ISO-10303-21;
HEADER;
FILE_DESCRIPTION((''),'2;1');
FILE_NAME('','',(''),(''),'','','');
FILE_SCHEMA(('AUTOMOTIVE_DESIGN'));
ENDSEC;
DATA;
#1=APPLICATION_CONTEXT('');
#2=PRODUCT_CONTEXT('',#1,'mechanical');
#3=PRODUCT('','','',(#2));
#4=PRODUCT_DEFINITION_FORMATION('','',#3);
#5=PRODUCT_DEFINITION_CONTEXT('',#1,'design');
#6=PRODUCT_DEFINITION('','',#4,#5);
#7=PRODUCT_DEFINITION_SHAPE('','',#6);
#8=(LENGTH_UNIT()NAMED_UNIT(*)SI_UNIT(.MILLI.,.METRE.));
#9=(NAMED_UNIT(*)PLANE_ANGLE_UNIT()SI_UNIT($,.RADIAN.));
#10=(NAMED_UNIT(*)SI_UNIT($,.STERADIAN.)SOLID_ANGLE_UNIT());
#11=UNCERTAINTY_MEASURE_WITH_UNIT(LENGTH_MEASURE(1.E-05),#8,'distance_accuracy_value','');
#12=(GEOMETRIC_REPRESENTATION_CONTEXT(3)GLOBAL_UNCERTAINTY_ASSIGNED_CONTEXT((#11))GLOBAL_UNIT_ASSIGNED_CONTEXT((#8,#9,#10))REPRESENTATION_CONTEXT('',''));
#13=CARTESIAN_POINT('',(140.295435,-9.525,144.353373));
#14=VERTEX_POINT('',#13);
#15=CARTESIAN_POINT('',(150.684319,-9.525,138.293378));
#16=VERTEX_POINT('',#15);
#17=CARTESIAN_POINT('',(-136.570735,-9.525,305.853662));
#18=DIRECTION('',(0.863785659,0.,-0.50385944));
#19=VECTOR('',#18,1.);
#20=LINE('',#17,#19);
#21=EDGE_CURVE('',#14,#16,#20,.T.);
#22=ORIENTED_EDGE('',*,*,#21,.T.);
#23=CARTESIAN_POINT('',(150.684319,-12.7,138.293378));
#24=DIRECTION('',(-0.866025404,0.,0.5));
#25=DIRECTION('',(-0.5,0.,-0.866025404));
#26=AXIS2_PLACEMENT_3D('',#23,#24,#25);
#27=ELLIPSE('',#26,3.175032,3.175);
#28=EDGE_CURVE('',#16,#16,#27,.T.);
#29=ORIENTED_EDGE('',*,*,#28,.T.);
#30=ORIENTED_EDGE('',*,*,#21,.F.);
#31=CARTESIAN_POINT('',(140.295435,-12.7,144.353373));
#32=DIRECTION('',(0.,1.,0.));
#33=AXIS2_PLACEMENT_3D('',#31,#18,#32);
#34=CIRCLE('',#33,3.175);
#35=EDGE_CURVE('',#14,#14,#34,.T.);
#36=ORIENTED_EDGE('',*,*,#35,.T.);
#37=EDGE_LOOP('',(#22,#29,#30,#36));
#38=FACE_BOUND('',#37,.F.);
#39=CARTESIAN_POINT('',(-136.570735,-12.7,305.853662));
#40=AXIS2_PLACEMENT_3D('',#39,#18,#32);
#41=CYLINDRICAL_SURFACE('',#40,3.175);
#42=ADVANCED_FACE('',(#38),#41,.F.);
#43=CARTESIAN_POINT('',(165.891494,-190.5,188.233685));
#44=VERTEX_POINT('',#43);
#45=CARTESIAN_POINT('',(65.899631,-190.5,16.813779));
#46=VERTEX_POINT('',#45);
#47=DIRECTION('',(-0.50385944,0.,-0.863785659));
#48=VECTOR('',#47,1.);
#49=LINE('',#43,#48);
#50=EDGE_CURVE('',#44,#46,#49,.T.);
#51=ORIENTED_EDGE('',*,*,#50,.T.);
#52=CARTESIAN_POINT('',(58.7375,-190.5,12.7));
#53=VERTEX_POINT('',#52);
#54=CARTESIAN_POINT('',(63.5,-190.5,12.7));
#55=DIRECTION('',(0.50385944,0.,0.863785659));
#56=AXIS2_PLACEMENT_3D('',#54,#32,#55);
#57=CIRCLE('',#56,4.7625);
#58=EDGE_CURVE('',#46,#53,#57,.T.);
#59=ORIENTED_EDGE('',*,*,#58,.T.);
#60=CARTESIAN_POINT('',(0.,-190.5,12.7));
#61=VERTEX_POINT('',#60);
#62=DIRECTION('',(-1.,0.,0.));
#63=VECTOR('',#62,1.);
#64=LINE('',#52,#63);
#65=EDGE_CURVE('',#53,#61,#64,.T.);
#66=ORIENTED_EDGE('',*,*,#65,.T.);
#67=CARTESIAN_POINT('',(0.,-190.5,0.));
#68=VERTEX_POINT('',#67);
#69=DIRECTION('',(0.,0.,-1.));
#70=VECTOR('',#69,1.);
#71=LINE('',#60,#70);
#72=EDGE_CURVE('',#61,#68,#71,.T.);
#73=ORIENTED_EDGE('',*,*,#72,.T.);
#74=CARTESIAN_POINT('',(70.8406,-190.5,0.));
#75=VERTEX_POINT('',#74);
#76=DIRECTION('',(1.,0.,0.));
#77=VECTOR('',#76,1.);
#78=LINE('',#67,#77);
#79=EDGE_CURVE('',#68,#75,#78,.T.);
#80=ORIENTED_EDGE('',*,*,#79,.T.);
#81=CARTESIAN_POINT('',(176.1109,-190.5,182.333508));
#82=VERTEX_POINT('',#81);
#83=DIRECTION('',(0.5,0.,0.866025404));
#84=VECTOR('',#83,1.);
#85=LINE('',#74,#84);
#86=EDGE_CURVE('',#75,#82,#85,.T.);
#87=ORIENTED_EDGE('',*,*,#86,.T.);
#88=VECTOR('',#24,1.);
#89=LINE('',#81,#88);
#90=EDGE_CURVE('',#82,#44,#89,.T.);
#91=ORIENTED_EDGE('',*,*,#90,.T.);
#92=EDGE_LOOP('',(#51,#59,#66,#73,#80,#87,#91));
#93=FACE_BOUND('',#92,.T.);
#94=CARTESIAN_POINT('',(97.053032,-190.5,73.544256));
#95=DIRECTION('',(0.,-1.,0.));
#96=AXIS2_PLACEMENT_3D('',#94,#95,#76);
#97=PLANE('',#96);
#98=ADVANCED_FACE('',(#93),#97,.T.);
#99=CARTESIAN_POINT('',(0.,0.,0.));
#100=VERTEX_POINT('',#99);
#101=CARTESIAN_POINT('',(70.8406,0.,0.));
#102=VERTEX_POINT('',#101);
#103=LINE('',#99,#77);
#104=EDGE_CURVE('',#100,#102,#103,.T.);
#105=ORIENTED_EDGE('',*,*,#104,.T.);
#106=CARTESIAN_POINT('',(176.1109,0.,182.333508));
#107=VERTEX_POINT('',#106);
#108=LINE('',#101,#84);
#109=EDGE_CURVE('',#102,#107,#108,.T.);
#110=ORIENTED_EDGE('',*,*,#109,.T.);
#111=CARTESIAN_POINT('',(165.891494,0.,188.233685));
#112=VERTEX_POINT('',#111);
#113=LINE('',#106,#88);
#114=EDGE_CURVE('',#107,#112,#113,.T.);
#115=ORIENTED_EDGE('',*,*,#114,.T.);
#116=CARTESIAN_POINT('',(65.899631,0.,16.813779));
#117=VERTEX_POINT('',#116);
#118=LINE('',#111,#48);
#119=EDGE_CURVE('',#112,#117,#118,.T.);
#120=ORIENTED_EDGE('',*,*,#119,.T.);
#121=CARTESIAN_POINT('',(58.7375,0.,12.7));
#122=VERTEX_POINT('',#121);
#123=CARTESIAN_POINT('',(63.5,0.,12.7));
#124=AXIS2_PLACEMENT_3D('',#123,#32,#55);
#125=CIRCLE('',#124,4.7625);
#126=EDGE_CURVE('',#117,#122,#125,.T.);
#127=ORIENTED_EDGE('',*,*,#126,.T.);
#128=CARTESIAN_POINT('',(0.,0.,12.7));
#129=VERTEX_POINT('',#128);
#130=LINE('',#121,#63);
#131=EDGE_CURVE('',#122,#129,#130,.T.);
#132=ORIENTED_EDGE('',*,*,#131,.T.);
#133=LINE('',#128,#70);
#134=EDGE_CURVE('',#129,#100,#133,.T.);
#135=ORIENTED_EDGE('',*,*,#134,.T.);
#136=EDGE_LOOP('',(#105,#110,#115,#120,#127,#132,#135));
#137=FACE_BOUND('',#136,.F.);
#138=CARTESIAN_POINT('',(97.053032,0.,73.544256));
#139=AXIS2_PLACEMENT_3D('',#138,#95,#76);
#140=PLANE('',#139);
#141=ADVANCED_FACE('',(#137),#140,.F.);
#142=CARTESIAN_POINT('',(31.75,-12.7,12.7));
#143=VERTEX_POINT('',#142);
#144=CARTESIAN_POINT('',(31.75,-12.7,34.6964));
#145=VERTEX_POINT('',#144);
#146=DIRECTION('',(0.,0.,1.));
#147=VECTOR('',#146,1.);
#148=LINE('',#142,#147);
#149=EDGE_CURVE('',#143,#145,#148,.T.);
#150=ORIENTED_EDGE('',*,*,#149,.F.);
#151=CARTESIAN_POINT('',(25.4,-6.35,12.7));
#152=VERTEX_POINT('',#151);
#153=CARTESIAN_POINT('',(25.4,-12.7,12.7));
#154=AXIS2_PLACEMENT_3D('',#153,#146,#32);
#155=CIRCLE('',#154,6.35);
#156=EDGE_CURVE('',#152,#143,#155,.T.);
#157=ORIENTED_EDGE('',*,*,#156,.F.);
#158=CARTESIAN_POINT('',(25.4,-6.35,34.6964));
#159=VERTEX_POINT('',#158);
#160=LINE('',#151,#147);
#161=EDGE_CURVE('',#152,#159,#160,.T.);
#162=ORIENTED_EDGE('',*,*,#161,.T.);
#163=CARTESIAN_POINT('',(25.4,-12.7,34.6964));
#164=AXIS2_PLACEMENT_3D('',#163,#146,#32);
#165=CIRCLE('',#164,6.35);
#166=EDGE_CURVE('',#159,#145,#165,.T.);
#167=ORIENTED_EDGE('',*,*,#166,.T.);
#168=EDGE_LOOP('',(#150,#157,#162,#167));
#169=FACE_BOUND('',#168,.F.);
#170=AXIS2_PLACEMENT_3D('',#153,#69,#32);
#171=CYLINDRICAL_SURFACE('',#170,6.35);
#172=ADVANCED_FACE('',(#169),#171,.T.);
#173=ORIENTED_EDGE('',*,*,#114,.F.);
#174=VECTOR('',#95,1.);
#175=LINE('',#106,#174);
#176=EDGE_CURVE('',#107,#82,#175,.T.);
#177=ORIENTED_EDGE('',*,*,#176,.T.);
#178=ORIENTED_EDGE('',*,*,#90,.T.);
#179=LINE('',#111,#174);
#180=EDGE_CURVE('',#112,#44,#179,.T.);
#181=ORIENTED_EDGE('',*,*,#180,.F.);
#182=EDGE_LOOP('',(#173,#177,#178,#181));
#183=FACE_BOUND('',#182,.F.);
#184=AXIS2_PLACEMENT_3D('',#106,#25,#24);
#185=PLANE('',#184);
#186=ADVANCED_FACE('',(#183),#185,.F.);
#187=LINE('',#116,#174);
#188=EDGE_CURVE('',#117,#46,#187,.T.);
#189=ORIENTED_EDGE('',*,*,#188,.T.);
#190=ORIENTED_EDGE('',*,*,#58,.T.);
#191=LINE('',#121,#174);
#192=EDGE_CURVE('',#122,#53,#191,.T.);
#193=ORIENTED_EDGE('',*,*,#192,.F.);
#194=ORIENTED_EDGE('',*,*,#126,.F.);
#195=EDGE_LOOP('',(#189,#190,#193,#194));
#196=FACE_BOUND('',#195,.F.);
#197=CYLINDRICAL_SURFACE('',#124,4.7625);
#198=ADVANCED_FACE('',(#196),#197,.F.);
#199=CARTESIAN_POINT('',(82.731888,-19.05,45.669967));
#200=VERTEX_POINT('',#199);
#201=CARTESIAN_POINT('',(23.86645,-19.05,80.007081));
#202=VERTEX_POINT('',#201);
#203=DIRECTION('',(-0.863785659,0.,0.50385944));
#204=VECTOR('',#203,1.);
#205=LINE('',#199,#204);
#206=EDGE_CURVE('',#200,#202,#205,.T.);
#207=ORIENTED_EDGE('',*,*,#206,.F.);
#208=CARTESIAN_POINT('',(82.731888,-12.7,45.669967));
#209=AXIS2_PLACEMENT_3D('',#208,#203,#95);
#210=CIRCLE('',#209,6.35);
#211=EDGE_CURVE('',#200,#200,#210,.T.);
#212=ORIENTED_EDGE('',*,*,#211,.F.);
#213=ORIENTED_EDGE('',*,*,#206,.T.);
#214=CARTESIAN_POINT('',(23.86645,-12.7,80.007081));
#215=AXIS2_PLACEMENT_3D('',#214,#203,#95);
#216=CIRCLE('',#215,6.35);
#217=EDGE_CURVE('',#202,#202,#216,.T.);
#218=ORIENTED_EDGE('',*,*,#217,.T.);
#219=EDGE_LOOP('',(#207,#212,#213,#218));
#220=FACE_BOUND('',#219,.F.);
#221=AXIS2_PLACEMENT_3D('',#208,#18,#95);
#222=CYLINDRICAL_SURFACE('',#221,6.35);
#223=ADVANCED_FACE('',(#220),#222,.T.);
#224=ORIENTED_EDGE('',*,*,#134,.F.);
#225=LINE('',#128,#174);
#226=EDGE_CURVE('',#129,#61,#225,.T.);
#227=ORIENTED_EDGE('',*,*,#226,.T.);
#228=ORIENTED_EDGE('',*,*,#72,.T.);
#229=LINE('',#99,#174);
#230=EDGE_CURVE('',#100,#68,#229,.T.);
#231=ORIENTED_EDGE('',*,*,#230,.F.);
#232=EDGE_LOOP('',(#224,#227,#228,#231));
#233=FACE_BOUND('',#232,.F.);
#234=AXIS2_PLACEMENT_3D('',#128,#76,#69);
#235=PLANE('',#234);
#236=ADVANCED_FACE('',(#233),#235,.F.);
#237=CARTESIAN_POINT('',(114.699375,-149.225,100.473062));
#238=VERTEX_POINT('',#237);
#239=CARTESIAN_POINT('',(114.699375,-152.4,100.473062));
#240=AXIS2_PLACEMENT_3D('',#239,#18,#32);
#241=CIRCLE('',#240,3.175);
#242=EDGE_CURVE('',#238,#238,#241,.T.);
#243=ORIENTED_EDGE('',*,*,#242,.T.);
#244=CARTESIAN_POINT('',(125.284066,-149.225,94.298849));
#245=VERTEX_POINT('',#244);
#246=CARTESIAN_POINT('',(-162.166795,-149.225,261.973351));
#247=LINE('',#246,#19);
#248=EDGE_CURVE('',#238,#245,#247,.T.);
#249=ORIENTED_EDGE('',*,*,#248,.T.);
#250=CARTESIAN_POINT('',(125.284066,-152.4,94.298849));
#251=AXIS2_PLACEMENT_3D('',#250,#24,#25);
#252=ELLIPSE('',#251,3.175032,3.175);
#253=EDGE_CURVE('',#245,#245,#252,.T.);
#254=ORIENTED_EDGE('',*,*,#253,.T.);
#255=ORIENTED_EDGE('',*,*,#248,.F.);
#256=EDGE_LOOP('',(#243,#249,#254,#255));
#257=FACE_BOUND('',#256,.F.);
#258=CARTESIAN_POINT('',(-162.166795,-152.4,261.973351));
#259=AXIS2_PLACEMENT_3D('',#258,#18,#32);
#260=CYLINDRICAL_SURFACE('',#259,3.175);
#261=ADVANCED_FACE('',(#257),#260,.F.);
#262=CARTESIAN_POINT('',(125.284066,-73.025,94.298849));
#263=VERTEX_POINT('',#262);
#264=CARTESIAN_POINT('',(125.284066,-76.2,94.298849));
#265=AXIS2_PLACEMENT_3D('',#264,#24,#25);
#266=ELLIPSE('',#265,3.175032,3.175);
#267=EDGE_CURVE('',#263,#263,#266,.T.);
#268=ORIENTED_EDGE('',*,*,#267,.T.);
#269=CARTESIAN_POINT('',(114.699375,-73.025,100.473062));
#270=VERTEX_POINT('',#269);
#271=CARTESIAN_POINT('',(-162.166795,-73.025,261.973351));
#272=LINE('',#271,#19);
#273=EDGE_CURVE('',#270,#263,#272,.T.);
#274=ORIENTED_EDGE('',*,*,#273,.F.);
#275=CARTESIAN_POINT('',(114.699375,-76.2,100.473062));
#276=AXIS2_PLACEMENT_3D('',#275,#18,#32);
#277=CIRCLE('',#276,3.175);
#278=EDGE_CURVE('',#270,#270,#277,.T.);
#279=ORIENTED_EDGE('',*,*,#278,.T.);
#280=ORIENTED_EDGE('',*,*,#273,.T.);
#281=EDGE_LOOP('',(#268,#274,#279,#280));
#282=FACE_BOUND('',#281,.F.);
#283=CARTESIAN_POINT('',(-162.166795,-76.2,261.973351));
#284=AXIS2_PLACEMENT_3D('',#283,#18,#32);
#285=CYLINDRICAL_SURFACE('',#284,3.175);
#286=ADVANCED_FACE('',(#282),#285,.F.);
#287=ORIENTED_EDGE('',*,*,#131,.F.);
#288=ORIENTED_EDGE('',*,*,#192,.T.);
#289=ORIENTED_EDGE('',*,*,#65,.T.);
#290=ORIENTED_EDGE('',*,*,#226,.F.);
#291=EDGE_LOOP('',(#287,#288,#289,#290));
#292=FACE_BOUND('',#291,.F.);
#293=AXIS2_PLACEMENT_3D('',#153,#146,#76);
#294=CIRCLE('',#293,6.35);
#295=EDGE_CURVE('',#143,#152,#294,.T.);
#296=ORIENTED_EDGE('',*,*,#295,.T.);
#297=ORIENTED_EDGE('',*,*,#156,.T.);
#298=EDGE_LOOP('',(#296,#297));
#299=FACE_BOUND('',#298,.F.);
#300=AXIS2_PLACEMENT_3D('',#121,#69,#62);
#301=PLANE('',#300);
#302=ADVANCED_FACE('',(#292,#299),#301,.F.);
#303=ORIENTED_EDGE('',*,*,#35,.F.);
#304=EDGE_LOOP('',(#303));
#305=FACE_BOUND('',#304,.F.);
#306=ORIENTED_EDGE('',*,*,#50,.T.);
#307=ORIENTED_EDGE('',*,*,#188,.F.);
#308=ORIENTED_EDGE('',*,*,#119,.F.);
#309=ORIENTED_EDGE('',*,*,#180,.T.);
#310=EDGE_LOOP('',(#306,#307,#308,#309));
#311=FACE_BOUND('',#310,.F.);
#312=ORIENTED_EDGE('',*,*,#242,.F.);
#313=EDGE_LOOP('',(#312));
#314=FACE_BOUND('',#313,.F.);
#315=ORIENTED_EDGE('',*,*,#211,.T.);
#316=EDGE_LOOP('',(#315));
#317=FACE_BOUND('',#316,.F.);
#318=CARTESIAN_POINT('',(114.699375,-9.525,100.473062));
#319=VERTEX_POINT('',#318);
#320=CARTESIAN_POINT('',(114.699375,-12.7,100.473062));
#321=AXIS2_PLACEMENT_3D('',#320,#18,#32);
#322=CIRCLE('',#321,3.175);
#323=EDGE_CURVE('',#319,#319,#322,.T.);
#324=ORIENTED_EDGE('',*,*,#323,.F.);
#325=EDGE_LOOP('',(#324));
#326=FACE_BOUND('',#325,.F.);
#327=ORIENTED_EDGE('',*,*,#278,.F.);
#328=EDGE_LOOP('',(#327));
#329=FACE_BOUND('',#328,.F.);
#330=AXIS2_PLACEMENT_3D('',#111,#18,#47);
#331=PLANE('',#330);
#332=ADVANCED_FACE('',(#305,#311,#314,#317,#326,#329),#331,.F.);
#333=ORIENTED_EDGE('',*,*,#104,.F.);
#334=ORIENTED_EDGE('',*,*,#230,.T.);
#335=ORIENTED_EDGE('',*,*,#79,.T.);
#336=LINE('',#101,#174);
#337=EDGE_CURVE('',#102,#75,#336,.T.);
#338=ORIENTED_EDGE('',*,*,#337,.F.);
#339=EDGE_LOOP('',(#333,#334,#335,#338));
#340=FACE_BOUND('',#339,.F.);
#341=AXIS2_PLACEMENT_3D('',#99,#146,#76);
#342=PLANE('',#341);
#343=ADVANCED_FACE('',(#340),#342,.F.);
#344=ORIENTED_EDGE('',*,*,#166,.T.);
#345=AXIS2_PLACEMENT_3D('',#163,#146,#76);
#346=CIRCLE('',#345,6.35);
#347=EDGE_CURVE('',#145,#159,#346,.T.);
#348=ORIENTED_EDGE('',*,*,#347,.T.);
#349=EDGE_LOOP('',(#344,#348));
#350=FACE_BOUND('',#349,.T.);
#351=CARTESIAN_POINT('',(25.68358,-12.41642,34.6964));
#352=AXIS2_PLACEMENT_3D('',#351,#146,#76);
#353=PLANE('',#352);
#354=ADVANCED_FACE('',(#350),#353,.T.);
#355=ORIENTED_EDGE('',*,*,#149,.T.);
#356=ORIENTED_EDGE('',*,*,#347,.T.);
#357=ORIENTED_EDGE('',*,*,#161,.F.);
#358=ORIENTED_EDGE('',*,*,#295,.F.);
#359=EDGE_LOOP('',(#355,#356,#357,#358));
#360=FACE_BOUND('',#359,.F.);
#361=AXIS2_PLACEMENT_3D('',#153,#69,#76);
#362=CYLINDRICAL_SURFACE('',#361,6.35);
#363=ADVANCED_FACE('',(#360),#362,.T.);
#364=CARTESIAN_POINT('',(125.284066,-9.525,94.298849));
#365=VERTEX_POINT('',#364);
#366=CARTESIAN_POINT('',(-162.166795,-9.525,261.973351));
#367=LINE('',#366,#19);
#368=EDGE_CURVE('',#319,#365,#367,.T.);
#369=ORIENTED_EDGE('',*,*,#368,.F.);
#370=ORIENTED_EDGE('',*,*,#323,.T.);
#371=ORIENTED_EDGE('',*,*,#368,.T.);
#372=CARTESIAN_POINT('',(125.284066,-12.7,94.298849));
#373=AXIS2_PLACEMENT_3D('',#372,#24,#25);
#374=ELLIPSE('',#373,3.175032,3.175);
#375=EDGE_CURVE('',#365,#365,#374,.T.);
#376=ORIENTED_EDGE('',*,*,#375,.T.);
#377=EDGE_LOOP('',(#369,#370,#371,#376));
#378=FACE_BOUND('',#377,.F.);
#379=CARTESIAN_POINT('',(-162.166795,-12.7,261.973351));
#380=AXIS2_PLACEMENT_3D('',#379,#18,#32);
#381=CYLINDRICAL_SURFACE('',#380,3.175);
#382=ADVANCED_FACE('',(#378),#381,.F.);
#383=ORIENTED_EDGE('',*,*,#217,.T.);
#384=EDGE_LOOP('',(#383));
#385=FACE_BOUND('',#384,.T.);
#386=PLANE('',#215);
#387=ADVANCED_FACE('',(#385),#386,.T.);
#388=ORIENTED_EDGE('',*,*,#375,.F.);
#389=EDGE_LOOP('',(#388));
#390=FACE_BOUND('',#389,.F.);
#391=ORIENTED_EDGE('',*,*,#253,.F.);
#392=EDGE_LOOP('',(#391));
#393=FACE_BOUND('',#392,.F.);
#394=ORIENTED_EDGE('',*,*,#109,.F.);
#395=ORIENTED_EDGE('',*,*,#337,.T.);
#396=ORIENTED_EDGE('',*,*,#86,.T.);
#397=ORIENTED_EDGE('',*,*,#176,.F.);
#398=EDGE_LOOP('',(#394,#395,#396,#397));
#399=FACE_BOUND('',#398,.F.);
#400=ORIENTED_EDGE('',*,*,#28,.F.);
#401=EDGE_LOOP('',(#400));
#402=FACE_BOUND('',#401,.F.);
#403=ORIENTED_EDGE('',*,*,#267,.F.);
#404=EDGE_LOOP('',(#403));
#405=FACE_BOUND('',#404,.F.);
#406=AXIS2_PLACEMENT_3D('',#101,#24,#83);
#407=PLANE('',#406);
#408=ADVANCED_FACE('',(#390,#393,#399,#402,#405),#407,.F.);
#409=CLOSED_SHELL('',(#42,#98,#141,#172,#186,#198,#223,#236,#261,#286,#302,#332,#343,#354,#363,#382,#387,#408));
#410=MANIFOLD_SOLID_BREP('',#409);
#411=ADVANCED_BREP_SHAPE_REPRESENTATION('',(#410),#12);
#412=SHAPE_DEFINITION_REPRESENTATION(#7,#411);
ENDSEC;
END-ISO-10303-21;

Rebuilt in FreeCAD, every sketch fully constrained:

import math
import FreeCAD as App
import Part
import Sketcher
from FreeCAD import Vector
Q = App.Units.Quantity

doc = App.newDocument("Part")
params = doc.addObject("Spreadsheet::Sheet", "Params")
for row, (alias, value) in enumerate([
    ("sketch1_height", "0.5 in"),
    ("sketch1_radius", "0.1875 in"),
    ("sketch1_width", "2.789 in"),
    ("sketch1_length", "8.289 in"),
    ("pad1_length", "7.5 in"),
    ("sketch2_radius", "0.25 in"),
    ("pad2_length", "0.866 in"),
    ("sketch3_diameter", "0.5 in"),
    ("pad3_length", "2.683 in"),
    ("sketch4_diameter", "0.25 in"),
    ("hole_diameter", "0.25 in"),
], start=1):
    params.set(f"A{row}", alias)
    params.set(f"B{row}", "=" + value)
    params.setAlias(f"B{row}", alias)

body = doc.addObject("PartDesign::Body", "Body")

# Sketch on XZ plane
sketch1 = body.newObject("Sketcher::SketchObject", "Sketch")
sketch1.AttachmentSupport = (doc.getObject("XZ_Plane"), [""])
sketch1.MapMode = "FlatFace"
sketch1.addGeometry(Part.LineSegment(Vector(0, 12.7, 0), Vector(0, 0, 0)), False)
sketch1.addGeometry(Part.LineSegment(Vector(0, 0, 0), Vector(70.8406, 0, 0)), False)
sketch1.addGeometry(Part.LineSegment(Vector(70.8406, 0, 0), Vector(176.1109, 182.333508, 0)), False)
sketch1.addGeometry(Part.LineSegment(Vector(176.1109, 182.333508, 0), Vector(165.891494, 188.233685, 0)), False)
sketch1.addGeometry(Part.LineSegment(Vector(165.891494, 188.233685, 0), Vector(65.899631, 16.813779, 0)), False)
sketch1.addGeometry(Part.ArcOfCircle(Part.Circle(Vector(63.5, 12.7, 0), Vector(0, 0, 1), 4.7625), math.radians(180), math.radians(419.744331)), False)
sketch1.addGeometry(Part.LineSegment(Vector(58.7375, 12.7, 0), Vector(0, 12.7, 0)), False)
sketch1.addConstraint(Sketcher.Constraint("Coincident", 0, 2, 1, 1))
sketch1.addConstraint(Sketcher.Constraint("Coincident", 1, 2, 2, 1))
sketch1.addConstraint(Sketcher.Constraint("Coincident", 2, 2, 3, 1))
sketch1.addConstraint(Sketcher.Constraint("Coincident", 3, 2, 4, 1))
sketch1.addConstraint(Sketcher.Constraint("Coincident", 4, 2, 5, 2))
sketch1.addConstraint(Sketcher.Constraint("Coincident", 5, 1, 6, 1))
sketch1.addConstraint(Sketcher.Constraint("Coincident", 6, 2, 0, 1))
sketch1.addConstraint(Sketcher.Constraint("Vertical", 0))
sketch1.addConstraint(Sketcher.Constraint("Horizontal", 1))
sketch1.addConstraint(Sketcher.Constraint("Horizontal", 6))
sketch1.addConstraint(Sketcher.Constraint("Coincident", 0, 2, -1, 1))
sketch1.addConstraint(Sketcher.Constraint("DistanceY", 0, 2, 0, 1, Q("0.5 in")))
sketch1.addConstraint(Sketcher.Constraint("Radius", 5, Q("0.1875 in")))
sketch1.addConstraint(Sketcher.Constraint("DistanceX", -1, 1, 5, 3, Q("2.5 in")))
sketch1.addConstraint(Sketcher.Constraint("DistanceY", -1, 1, 5, 3, Q("0.5 in")))
sketch1.addConstraint(Sketcher.Constraint("DistanceX", 1, 1, 1, 2, Q("2.789 in")))
sketch1.addConstraint(Sketcher.Constraint("Distance", 2, Q("8.289 in")))
sketch1.addConstraint(Sketcher.Constraint("DistanceX", -1, 1, 2, 2, Q("6.9335 in")))
sketch1.addConstraint(Sketcher.Constraint("Distance", 4, Q("198.451901 mm")))
sketch1.addConstraint(Sketcher.Constraint("DistanceX", -1, 1, 4, 2, Q("65.899631 mm")))
sketch1.addConstraint(Sketcher.Constraint("Distance", 3, Q("11.800353 mm")))
sketch1.setExpression("Constraints[11]", "Params.sketch1_height")
sketch1.setExpression("Constraints[12]", "Params.sketch1_radius")
sketch1.setExpression("Constraints[15]", "Params.sketch1_width")
sketch1.setExpression("Constraints[16]", "Params.sketch1_length")
pad1 = body.newObject("PartDesign::Pad", "Pad")
pad1.Profile = sketch1
pad1.setExpression("Length", "Params.pad1_length")

# Sketch on XY plane
sketch2 = body.newObject("Sketcher::SketchObject", "Sketch001")
sketch2.AttachmentSupport = (doc.getObject("XY_Plane"), [""])
sketch2.MapMode = "FlatFace"
sketch2.AttachmentOffset = App.Placement(Vector(0, 0, 0.5 * 25.4), App.Rotation())
sketch2.addGeometry(Part.ArcOfCircle(Part.Circle(Vector(25.4, -12.7, 0), Vector(0, 0, 1), 6.35), math.radians(90), math.radians(360)), False)
sketch2.addGeometry(Part.ArcOfCircle(Part.Circle(Vector(25.4, -12.7, 0), Vector(0, 0, 1), 6.35), math.radians(0), math.radians(90)), False)
sketch2.addConstraint(Sketcher.Constraint("Tangent", 0, 1, 1, 2))
sketch2.addConstraint(Sketcher.Constraint("Coincident", 1, 1, 0, 2))
sketch2.addConstraint(Sketcher.Constraint("Horizontal", 0, 3, 1, 1))
sketch2.addConstraint(Sketcher.Constraint("Vertical", 1, 3, 0, 1))
sketch2.addConstraint(Sketcher.Constraint("Radius", 0, Q("0.25 in")))
sketch2.addConstraint(Sketcher.Constraint("DistanceX", -1, 1, 0, 3, Q("1 in")))
sketch2.addConstraint(Sketcher.Constraint("DistanceY", 0, 3, -1, 1, Q("0.5 in")))
sketch2.setExpression("Constraints[4]", "Params.sketch2_radius")
pad2 = body.newObject("PartDesign::Pad", "Pad001")
pad2.Profile = sketch2
pad2.setExpression("Length", "Params.pad2_length")

# Sketch on an angled plane
sketch3 = body.newObject("Sketcher::SketchObject", "Sketch002")
sketch3.Placement = App.Placement(Vector(41.851602, 0, -24.412682), App.Rotation(Vector(0, -1, 0), Vector(0.50385944, 0, 0.863785659), Vector(-0.863785659, 0, 0.50385944), "ZXY"))
sketch3.addGeometry(Part.Circle(Vector(12.7, 81.134305, 0), Vector(0, 0, 1), 6.35), False)
sketch3.addConstraint(Sketcher.Constraint("Diameter", 0, Q("0.5 in")))
sketch3.addConstraint(Sketcher.Constraint("DistanceX", -1, 1, 0, 3, Q("0.5 in")))
sketch3.addConstraint(Sketcher.Constraint("DistanceY", -1, 1, 0, 3, Q("81.134305 mm")))
sketch3.setExpression("Constraints[0]", "Params.sketch3_diameter")
pad3 = body.newObject("PartDesign::Pad", "Pad002")
pad3.Profile = sketch3
pad3.setExpression("Length", "Params.pad3_length")

# Sketch on an angled plane
sketch4 = body.newObject("Sketcher::SketchObject", "Sketch003")
sketch4.Placement = App.Placement(Vector(41.851602, 0, -24.412682), App.Rotation(Vector(0, -1, 0), Vector(0.50385944, 0, 0.863785659), Vector(-0.863785659, 0, 0.50385944), "ZXY"))
sketch4.addGeometry(Part.Circle(Vector(12.7, 195.379553, 0), Vector(0, 0, 1), 3.175), False)
sketch4.addGeometry(Part.Circle(Vector(12.7, 144.579553, 0), Vector(0, 0, 1), 3.175), False)
sketch4.addGeometry(Part.Circle(Vector(76.2, 144.579553, 0), Vector(0, 0, 1), 3.175), False)
sketch4.addGeometry(Part.Circle(Vector(152.4, 144.579553, 0), Vector(0, 0, 1), 3.175), False)
sketch4.addConstraint(Sketcher.Constraint("Equal", 0, 1))
sketch4.addConstraint(Sketcher.Constraint("Equal", 1, 2))
sketch4.addConstraint(Sketcher.Constraint("Equal", 2, 3))
sketch4.addConstraint(Sketcher.Constraint("Horizontal", 1, 3, 2, 3))
sketch4.addConstraint(Sketcher.Constraint("Horizontal", 2, 3, 3, 3))
sketch4.addConstraint(Sketcher.Constraint("Vertical", 0, 3, 1, 3))
sketch4.addConstraint(Sketcher.Constraint("Diameter", 0, Q("0.25 in")))
sketch4.addConstraint(Sketcher.Constraint("DistanceX", -1, 1, 2, 3, Q("3 in")))
sketch4.addConstraint(Sketcher.Constraint("DistanceX", -1, 1, 3, 3, Q("6 in")))
sketch4.addConstraint(Sketcher.Constraint("DistanceY", 1, 3, 0, 3, Q("2 in")))
sketch4.addConstraint(Sketcher.Constraint("DistanceX", -1, 1, 0, 3, Q("0.5 in")))
sketch4.addConstraint(Sketcher.Constraint("DistanceY", -1, 1, 0, 3, Q("195.379553 mm")))
sketch4.setExpression("Constraints[6]", "Params.sketch4_diameter")
doc.recompute()
hole = body.newObject("PartDesign::Hole", "Hole")
hole.Profile = sketch4
hole.ThreadType = "None"
hole.setExpression("Diameter", "Params.hole_diameter")
hole.DepthType = "ThroughAll"

doc.recompute()
